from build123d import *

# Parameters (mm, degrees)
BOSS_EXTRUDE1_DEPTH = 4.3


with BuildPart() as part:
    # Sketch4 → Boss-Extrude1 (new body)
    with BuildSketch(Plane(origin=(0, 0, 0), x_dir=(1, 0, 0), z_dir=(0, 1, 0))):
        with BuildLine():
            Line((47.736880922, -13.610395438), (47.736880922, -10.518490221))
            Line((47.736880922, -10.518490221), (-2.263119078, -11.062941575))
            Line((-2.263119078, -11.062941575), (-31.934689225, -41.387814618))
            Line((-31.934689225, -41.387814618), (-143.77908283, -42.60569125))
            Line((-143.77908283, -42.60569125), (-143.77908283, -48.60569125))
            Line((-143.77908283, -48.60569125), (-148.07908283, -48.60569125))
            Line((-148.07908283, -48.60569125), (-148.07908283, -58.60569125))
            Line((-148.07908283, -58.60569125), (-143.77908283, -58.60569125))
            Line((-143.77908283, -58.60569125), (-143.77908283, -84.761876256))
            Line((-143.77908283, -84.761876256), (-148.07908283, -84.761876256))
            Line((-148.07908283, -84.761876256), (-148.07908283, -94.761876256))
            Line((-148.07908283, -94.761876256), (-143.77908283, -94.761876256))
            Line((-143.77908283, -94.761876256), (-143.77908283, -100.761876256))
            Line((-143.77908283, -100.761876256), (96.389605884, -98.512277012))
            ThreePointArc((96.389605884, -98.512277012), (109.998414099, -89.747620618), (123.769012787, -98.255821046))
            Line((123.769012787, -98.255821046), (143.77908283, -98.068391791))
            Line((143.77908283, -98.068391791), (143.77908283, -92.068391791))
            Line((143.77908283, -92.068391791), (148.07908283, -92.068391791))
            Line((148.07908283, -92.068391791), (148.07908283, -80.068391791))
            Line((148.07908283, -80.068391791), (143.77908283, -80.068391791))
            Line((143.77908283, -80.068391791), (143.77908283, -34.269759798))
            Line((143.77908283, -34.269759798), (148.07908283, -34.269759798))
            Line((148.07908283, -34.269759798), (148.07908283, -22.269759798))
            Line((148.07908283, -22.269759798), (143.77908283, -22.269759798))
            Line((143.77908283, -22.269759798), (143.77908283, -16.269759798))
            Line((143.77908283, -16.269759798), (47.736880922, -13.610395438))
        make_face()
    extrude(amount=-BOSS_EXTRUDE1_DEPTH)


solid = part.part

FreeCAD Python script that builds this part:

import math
import FreeCAD as App
import Part
import Sketcher
from FreeCAD import Vector

doc = App.newDocument("Part")
body = doc.addObject("PartDesign::Body", "Body")

sketch1 = doc.addObject("Sketcher::SketchObject", "Sketch")
body.addObject(sketch1)
sketch1.AttachmentSupport = (doc.XZ_Plane, [""])
sketch1.MapMode = "FlatFace"
sketch1.addGeometry(Part.LineSegment(Vector(47.736881, 13.610395, 0), Vector(47.736881, 10.51849, 0)), False)
sketch1.addGeometry(Part.LineSegment(Vector(47.736881, 10.51849, 0), Vector(-2.263119, 11.062942, 0)), False)
sketch1.addGeometry(Part.LineSegment(Vector(-2.263119, 11.062942, 0), Vector(-31.934689, 41.387815, 0)), False)
sketch1.addGeometry(Part.LineSegment(Vector(-31.934689, 41.387815, 0), Vector(-143.779083, 42.605691, 0)), False)
sketch1.addGeometry(Part.LineSegment(Vector(-143.779083, 42.605691, 0), Vector(-143.779083, 48.605691, 0)), False)
sketch1.addGeometry(Part.LineSegment(Vector(-143.779083, 48.605691, 0), Vector(-148.079083, 48.605691, 0)), False)
sketch1.addGeometry(Part.LineSegment(Vector(-148.079083, 48.605691, 0), Vector(-148.079083, 58.605691, 0)), False)
sketch1.addGeometry(Part.LineSegment(Vector(-148.079083, 58.605691, 0), Vector(-143.779083, 58.605691, 0)), False)
sketch1.addGeometry(Part.LineSegment(Vector(-143.779083, 58.605691, 0), Vector(-143.779083, 84.761876, 0)), False)
sketch1.addGeometry(Part.LineSegment(Vector(-143.779083, 84.761876, 0), Vector(-148.079083, 84.761876, 0)), False)
sketch1.addGeometry(Part.LineSegment(Vector(-148.079083, 84.761876, 0), Vector(-148.079083, 94.761876, 0)), False)
sketch1.addGeometry(Part.LineSegment(Vector(-148.079083, 94.761876, 0), Vector(-143.779083, 94.761876, 0)), False)
sketch1.addGeometry(Part.LineSegment(Vector(-143.779083, 94.761876, 0), Vector(-143.779083, 100.761876, 0)), False)
sketch1.addGeometry(Part.LineSegment(Vector(-143.779083, 100.761876, 0), Vector(96.389606, 98.512277, 0)), False)
sketch1.addGeometry(Part.ArcOfCircle(Part.Circle(Vector(110.14049, 104.915689, 0), Vector(0, 0, 1), 15.168734), math.radians(-155.029886), math.radians(-26.043432)), False)
sketch1.addGeometry(Part.LineSegment(Vector(123.769013, 98.255821, 0), Vector(143.779083, 98.068392, 0)), False)
sketch1.addGeometry(Part.LineSegment(Vector(143.779083, 98.068392, 0), Vector(143.779083, 92.068392, 0)), False)
sketch1.addGeometry(Part.LineSegment(Vector(143.779083, 92.068392, 0), Vector(148.079083, 92.068392, 0)), False)
sketch1.addGeometry(Part.LineSegment(Vector(148.079083, 92.068392, 0), Vector(148.079083, 80.068392, 0)), False)
sketch1.addGeometry(Part.LineSegment(Vector(148.079083, 80.068392, 0), Vector(143.779083, 80.068392, 0)), False)
sketch1.addGeometry(Part.LineSegment(Vector(143.779083, 80.068392, 0), Vector(143.779083, 34.26976, 0)), False)
sketch1.addGeometry(Part.LineSegment(Vector(143.779083, 34.26976, 0), Vector(148.079083, 34.26976, 0)), False)
sketch1.addGeometry(Part.LineSegment(Vector(148.079083, 34.26976, 0), Vector(148.079083, 22.26976, 0)), False)
sketch1.addGeometry(Part.LineSegment(Vector(148.079083, 22.26976, 0), Vector(143.779083, 22.26976, 0)), False)
sketch1.addGeometry(Part.LineSegment(Vector(143.779083, 22.26976, 0), Vector(143.779083, 16.26976, 0)), False)
sketch1.addGeometry(Part.LineSegment(Vector(143.779083, 16.26976, 0), Vector(47.736881, 13.610395, 0)), False)
sketch1.addConstraint(Sketcher.Constraint("Coincident", 0, 2, 1, 1))
sketch1.addConstraint(Sketcher.Constraint("Coincident", 1, 2, 2, 1))
sketch1.addConstraint(Sketcher.Constraint("Coincident", 2, 2, 3, 1))
sketch1.addConstraint(Sketcher.Constraint("Coincident", 3, 2, 4, 1))
sketch1.addConstraint(Sketcher.Constraint("Coincident", 4, 2, 5, 1))
sketch1.addConstraint(Sketcher.Constraint("Coincident", 5, 2, 6, 1))
sketch1.addConstraint(Sketcher.Constraint("Coincident", 6, 2, 7, 1))
sketch1.addConstraint(Sketcher.Constraint("Coincident", 7, 2, 8, 1))
sketch1.addConstraint(Sketcher.Constraint("Coincident", 8, 2, 9, 1))
sketch1.addConstraint(Sketcher.Constraint("Coincident", 9, 2, 10, 1))
sketch1.addConstraint(Sketcher.Constraint("Coincident", 10, 2, 11, 1))
sketch1.addConstraint(Sketcher.Constraint("Coincident", 11, 2, 12, 1))
sketch1.addConstraint(Sketcher.Constraint("Coincident", 12, 2, 13, 1))
sketch1.addConstraint(Sketcher.Constraint("Coincident", 13, 2, 14, 1))
sketch1.addConstraint(Sketcher.Constraint("Coincident", 14, 2, 15, 1))
sketch1.addConstraint(Sketcher.Constraint("Coincident", 15, 2, 16, 1))
sketch1.addConstraint(Sketcher.Constraint("Coincident", 16, 2, 17, 1))
sketch1.addConstraint(Sketcher.Constraint("Coincident", 17, 2, 18, 1))
sketch1.addConstraint(Sketcher.Constraint("Coincident", 18, 2, 19, 1))
sketch1.addConstraint(Sketcher.Constraint("Coincident", 19, 2, 20, 1))
sketch1.addConstraint(Sketcher.Constraint("Coincident", 20, 2, 21, 1))
sketch1.addConstraint(Sketcher.Constraint("Coincident", 21, 2, 22, 1))
sketch1.addConstraint(Sketcher.Constraint("Coincident", 22, 2, 23, 1))
sketch1.addConstraint(Sketcher.Constraint("Coincident", 23, 2, 24, 1))
sketch1.addConstraint(Sketcher.Constraint("Coincident", 24, 2, 25, 1))
sketch1.addConstraint(Sketcher.Constraint("Coincident", 25, 2, 0, 1))
sketch1.addConstraint(Sketcher.Constraint("Vertical", 0))
sketch1.addConstraint(Sketcher.Constraint("Vertical", 4))
sketch1.addConstraint(Sketcher.Constraint("Horizontal", 5))
sketch1.addConstraint(Sketcher.Constraint("Vertical", 6))
sketch1.addConstraint(Sketcher.Constraint("Horizontal", 7))
sketch1.addConstraint(Sketcher.Constraint("Vertical", 8))
sketch1.addConstraint(Sketcher.Constraint("Horizontal", 9))
sketch1.addConstraint(Sketcher.Constraint("Vertical", 10))
sketch1.addConstraint(Sketcher.Constraint("Horizontal", 11))
sketch1.addConstraint(Sketcher.Constraint("Vertical", 12))
sketch1.addConstraint(Sketcher.Constraint("Vertical", 16))
sketch1.addConstraint(Sketcher.Constraint("Horizontal", 17))
sketch1.addConstraint(Sketcher.Constraint("Vertical", 18))
sketch1.addConstraint(Sketcher.Constraint("Horizontal", 19))
sketch1.addConstraint(Sketcher.Constraint("Vertical", 20))
sketch1.addConstraint(Sketcher.Constraint("Horizontal", 21))
sketch1.addConstraint(Sketcher.Constraint("Vertical", 22))
sketch1.addConstraint(Sketcher.Constraint("Horizontal", 23))
sketch1.addConstraint(Sketcher.Constraint("Vertical", 24))
sketch1.addConstraint(Sketcher.Constraint("Parallel", 1, 3))
sketch1.addConstraint(Sketcher.Constraint("Parallel", 13, 15))
sketch1.addConstraint(Sketcher.Constraint("Vertical", 4, 2, 7, 2))
sketch1.addConstraint(Sketcher.Constraint("Vertical", 6, 2, 9, 2))
sketch1.addConstraint(Sketcher.Constraint("Vertical", 8, 2, 11, 2))
sketch1.addConstraint(Sketcher.Constraint("Vertical", 16, 2, 19, 2))
sketch1.addConstraint(Sketcher.Constraint("Vertical", 18, 2, 21, 2))
sketch1.addConstraint(Sketcher.Constraint("Vertical", 20, 2, 23, 2))
sketch1.addConstraint(Sketcher.Constraint("Equal", 11, 17))
sketch1.addConstraint(Sketcher.Constraint("Equal", 6, 10))
sketch1.addConstraint(Sketcher.Constraint("Equal", 4, 12))
sketch1.addConstraint(Sketcher.Constraint("Equal", 12, 16))
sketch1.addConstraint(Sketcher.Constraint("Equal", 18, 22))
sketch1.addConstraint(Sketcher.Constraint("Equal", 16, 24))
sketch1.addConstraint(Sketcher.Constraint("DistanceY", 4, 1, 4, 2, 6.0))
sketch1.addConstraint(Sketcher.Constraint("DistanceY", 6, 1, 6, 2, 10.0))
sketch1.addConstraint(Sketcher.Constraint("DistanceY", 18, 2, 18, 1, 12.0))
sketch1.addConstraint(Sketcher.Constraint("DistanceX", 5, 2, 5, 1, 4.3))
sketch1.addConstraint(Sketcher.Constraint("DistanceX", 1, 2, 0, 2, 50.0))
sketch1.addConstraint(Sketcher.Constraint("Radius", 14, 15.168734))
sketch1.addConstraint(Sketcher.Constraint("DistanceY", 20, 2, 20, 1, 45.798632))
sketch1.addConstraint(Sketcher.Constraint("DistanceY", 0, 2, 14, 3, 94.397199))
sketch1.addConstraint(Sketcher.Constraint("DistanceY", 0, 2, 3, 2, 32.087201))
sketch1.addConstraint(Sketcher.Constraint("DistanceY", 13, 2, 12, 2, 2.249599))
sketch1.addConstraint(Sketcher.Constraint("DistanceX", 0, 2, 15, 2, 96.042202))
sketch1.addConstraint(Sketcher.Constraint("DistanceY", 0, 2, 15, 2, 87.549902))
sketch1.addConstraint(Sketcher.Constraint("DistanceY", 0, 2, 0, 1, 3.091905))
sketch1.addConstraint(Sketcher.Constraint("DistanceY", 8, 1, 8, 2, 26.156185))
sketch1.addConstraint(Sketcher.Constraint("DistanceX", -1, 1, 14, 3, 110.14049))
sketch1.addConstraint(Sketcher.Constraint("DistanceY", -1, 1, 14, 3, 104.915689))
sketch1.addConstraint(Sketcher.Constraint("DistanceX", -1, 1, 0, 2, 47.736881))
sketch1.addConstraint(Sketcher.Constraint("DistanceY", -1, 1, 1, 2, 11.062942))
sketch1.addConstraint(Sketcher.Constraint("DistanceX", 2, 2, -1, 1, 31.934689))
sketch1.addConstraint(Sketcher.Constraint("DistanceX", 12, 2, 13, 2, 240.168689))
pad1 = doc.addObject("PartDesign::Pad", "Pad")
body.addObject(pad1)
pad1.Profile = sketch1
pad1.Length = 4.3

doc.recompute()
